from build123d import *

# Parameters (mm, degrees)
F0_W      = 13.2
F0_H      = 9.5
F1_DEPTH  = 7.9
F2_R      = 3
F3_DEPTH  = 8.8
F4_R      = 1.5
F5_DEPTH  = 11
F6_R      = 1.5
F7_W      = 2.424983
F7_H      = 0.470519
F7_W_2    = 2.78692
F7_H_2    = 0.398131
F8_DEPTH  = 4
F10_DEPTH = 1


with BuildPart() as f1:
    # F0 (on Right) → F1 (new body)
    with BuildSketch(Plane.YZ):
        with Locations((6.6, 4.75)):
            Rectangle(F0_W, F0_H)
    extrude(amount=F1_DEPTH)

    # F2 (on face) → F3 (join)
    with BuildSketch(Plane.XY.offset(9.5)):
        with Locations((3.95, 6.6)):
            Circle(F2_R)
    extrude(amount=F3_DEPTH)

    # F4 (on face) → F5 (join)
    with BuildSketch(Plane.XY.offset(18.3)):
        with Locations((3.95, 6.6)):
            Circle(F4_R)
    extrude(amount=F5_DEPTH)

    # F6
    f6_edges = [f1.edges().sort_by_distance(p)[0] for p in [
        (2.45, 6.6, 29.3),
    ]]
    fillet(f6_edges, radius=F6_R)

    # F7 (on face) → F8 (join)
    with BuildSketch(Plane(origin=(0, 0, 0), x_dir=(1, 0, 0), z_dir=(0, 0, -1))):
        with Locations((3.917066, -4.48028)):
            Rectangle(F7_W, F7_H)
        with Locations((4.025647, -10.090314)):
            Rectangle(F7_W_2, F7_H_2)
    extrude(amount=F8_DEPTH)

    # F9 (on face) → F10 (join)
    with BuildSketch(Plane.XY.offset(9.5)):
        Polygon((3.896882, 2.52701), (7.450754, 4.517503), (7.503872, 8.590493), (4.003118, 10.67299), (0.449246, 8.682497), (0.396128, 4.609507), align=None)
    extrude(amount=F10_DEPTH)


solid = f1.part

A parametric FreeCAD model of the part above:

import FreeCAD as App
import Part
import Sketcher
from FreeCAD import Vector


def edges_at(feature, points):
    """Names of the edges that pass closest to the given points."""
    edges = feature.Shape.Edges
    near = lambda p: min(range(len(edges)), key=lambda i: edges[i].distToShape(Part.Vertex(*p))[0])
    return sorted({f"Edge{near(p) + 1}" for p in points})


def add_polygon(sketch, points):
    """Adds a closed chain of lines whose ends are joined by coincident constraints."""
    first, n = sketch.GeometryCount, len(points)
    for a, b in zip(points, points[1:] + points[:1]):
        sketch.addGeometry(Part.LineSegment(App.Vector(*a, 0), App.Vector(*b, 0)), False)
    for i in range(n):
        sketch.addConstraint(Sketcher.Constraint("Coincident", first + i, 2, first + (i + 1) % n, 1))

doc = App.newDocument("Part")
params = doc.addObject("Spreadsheet::Sheet", "Params")
for row, (alias, value) in enumerate([
    ("sketch1_width", "13.2 mm"),
    ("sketch1_height", "9.5 mm"),
    ("pad1_length", "7.9 mm"),
    ("sketch2_diameter", "6 mm"),
    ("pad2_length", "8.8 mm"),
    ("sketch3_diameter", "3 mm"),
    ("pad3_length", "11 mm"),
    ("fillet_radius", "1.5 mm"),
    ("pad4_length", "4 mm"),
    ("pad5_length", "1 mm"),
], start=1):
    params.set(f"A{row}", alias)
    params.set(f"B{row}", "=" + value)
    params.setAlias(f"B{row}", alias)

body = doc.addObject("PartDesign::Body", "Body")

# Sketch on YZ plane
sketch1 = body.newObject("Sketcher::SketchObject", "Sketch")
sketch1.AttachmentSupport = (doc.getObject("YZ_Plane"), [""])
sketch1.MapMode = "FlatFace"
add_polygon(sketch1, [(0, 10), (0, 0), (13, 0), (13, 10)])  # lines 0-3
sketch1.addConstraint([
    Sketcher.Constraint("Vertical", 0),
    Sketcher.Constraint("Horizontal", 1),
    Sketcher.Constraint("Vertical", 2),
    Sketcher.Constraint("Horizontal", 3),
    Sketcher.Constraint("Coincident", 0, 2, -1, 1),
    Sketcher.Constraint("DistanceX", 1, 1, 1, 2, 13.2),
    Sketcher.Constraint("DistanceY", 0, 2, 0, 1, 9.5),
])
sketch1.setExpression("Constraints[9]", "Params.sketch1_width")
sketch1.setExpression("Constraints[10]", "Params.sketch1_height")
pad1 = body.newObject("PartDesign::Pad", "Pad")
pad1.Profile = sketch1
pad1.setExpression("Length", "Params.pad1_length")

# Sketch on XY plane
sketch2 = body.newObject("Sketcher::SketchObject", "Sketch001")
sketch2.AttachmentSupport = (doc.getObject("XY_Plane"), [""])
sketch2.MapMode = "FlatFace"
sketch2.AttachmentOffset = App.Placement(Vector(0, 0, 9.5), App.Rotation())
sketch2.addGeometry(Part.Circle(Vector(4, 6.6, 0), Vector(0, 0, 1), 3), False)
sketch2.addConstraint([
    Sketcher.Constraint("Diameter", 0, 6.0),
    Sketcher.Constraint("DistanceY", -1, 1, 0, 3, 6.6),
    Sketcher.Constraint("DistanceX", -1, 1, 0, 3, 3.95),
])
sketch2.setExpression("Constraints[0]", "Params.sketch2_diameter")
pad2 = body.newObject("PartDesign::Pad", "Pad001")
pad2.Profile = sketch2
pad2.setExpression("Length", "Params.pad2_length")

# Sketch on XY plane
sketch3 = body.newObject("Sketcher::SketchObject", "Sketch002")
sketch3.AttachmentSupport = (doc.getObject("XY_Plane"), [""])
sketch3.MapMode = "FlatFace"
sketch3.AttachmentOffset = App.Placement(Vector(0, 0, 18.3), App.Rotation())
sketch3.addGeometry(Part.Circle(Vector(4, 6.6, 0), Vector(0, 0, 1), 1.5), False)
sketch3.addConstraint([
    Sketcher.Constraint("Diameter", 0, 3.0),
    Sketcher.Constraint("DistanceY", -1, 1, 0, 3, 6.6),
    Sketcher.Constraint("DistanceX", -1, 1, 0, 3, 3.95),
])
sketch3.setExpression("Constraints[0]", "Params.sketch3_diameter")
pad3 = body.newObject("PartDesign::Pad", "Pad002")
pad3.Profile = sketch3
pad3.setExpression("Length", "Params.pad3_length")
doc.recompute()

fillet = body.newObject("PartDesign::Fillet", "Fillet")
fillet.Base = (pad3, edges_at(pad3, [(2.45, 6.6, 29.3)]))
fillet.setExpression("Radius", "Params.fillet_radius")

# Sketch on XY plane
sketch4 = body.newObject("Sketcher::SketchObject", "Sketch003")
sketch4.AttachmentSupport = (doc.getObject("XY_Plane"), [""])
sketch4.MapMode = "FlatFace"
add_polygon(sketch4, [(2.7, 4.25), (2.7, 4.72), (5.13, 4.72), (5.13, 4.25)])  # lines 0-3
add_polygon(sketch4, [(2.63, 9.89), (2.63, 10.29), (5.42, 10.29), (5.42, 9.89)])  # lines 4-7
sketch4.addConstraint([
    Sketcher.Constraint("Vertical", 0),
    Sketcher.Constraint("Horizontal", 1),
    Sketcher.Constraint("Vertical", 2),
    Sketcher.Constraint("Horizontal", 3),
    Sketcher.Constraint("Vertical", 4),
    Sketcher.Constraint("Horizontal", 5),
    Sketcher.Constraint("Vertical", 6),
    Sketcher.Constraint("Horizontal", 7),
    Sketcher.Constraint("DistanceX", 5, 1, 5, 2, 2.78692),
    Sketcher.Constraint("DistanceY", 0, 1, 0, 2, 0.470519),
    Sketcher.Constraint("DistanceY", 4, 1, 4, 2, 0.398131),
    Sketcher.Constraint("DistanceX", 1, 1, 1, 2, 2.424983),
    Sketcher.Constraint("DistanceY", -1, 1, 0, 2, 4.71554),
    Sketcher.Constraint("DistanceY", -1, 1, 4, 2, 10.28938),
    Sketcher.Constraint("DistanceX", 4, 2, 1, 2, 2.49737),
    Sketcher.Constraint("DistanceX", -1, 1, 0, 2, 2.704575),
])
pad4 = body.newObject("PartDesign::Pad", "Pad003")
pad4.Profile = sketch4
pad4.setExpression("Length", "Params.pad4_length")
pad4.Reversed = True

# Sketch on XY plane
sketch5 = body.newObject("Sketcher::SketchObject", "Sketch004")
sketch5.AttachmentSupport = (doc.getObject("XY_Plane"), [""])
sketch5.MapMode = "FlatFace"
sketch5.AttachmentOffset = App.Placement(Vector(0, 0, 9.5), App.Rotation())
add_polygon(sketch5, [(3.9, 2.5), (7.5, 4.5), (7.5, 8.6), (4, 10.7), (0.4, 8.7), (0.4, 4.6)])  # lines 0-5
sketch5.addConstraint([
    Sketcher.Constraint("Parallel", 0, 3),
    Sketcher.Constraint("Parallel", 1, 4),
    Sketcher.Constraint("Parallel", 2, 5),
    Sketcher.Constraint("Equal", 0, 1),
    Sketcher.Constraint("Equal", 1, 2),
    Sketcher.Constraint("Equal", 2, 3),
    Sketcher.Constraint("DistanceY", -1, 1, 2, 2, 10.67299),
    Sketcher.Constraint("DistanceY", -1, 1, 5, 2, 2.52701),
    Sketcher.Constraint("DistanceX", 0, 2, 1, 2, 0.053118),
    Sketcher.Constraint("DistanceY", 0, 2, 1, 2, 4.07299),
    Sketcher.Constraint("DistanceX", 3, 2, 2, 2, 3.553872),
    Sketcher.Constraint("DistanceX", -1, 1, 0, 2, 7.450754),
])
pad5 = body.newObject("PartDesign::Pad", "Pad004")
pad5.Profile = sketch5
pad5.setExpression("Length", "Params.pad5_length")

doc.recompute()
